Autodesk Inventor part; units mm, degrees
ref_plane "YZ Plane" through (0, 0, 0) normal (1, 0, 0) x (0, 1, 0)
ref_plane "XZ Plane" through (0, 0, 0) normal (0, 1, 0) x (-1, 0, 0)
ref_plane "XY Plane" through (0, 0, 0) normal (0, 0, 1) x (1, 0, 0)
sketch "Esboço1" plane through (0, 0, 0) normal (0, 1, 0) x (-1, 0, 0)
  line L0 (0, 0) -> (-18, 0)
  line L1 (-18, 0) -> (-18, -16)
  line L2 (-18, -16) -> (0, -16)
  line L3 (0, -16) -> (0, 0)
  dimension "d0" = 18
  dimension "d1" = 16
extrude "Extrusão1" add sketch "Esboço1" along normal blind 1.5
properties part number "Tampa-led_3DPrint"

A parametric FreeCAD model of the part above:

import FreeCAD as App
import Part
import Sketcher
from FreeCAD import Vector
Q = App.Units.Quantity


def add_polygon(sketch, points):
    """Adds a closed chain of lines whose ends are joined by coincident constraints."""
    first, n = sketch.GeometryCount, len(points)
    for a, b in zip(points, points[1:] + points[:1]):
        sketch.addGeometry(Part.LineSegment(App.Vector(*a, 0), App.Vector(*b, 0)), False)
    for i in range(n):
        sketch.addConstraint(Sketcher.Constraint("Coincident", first + i, 2, first + (i + 1) % n, 1))

doc = App.newDocument("Part")
body = doc.addObject("PartDesign::Body", "Body")

# Sketch on XZ plane
sketch1 = doc.addObject("Sketcher::SketchObject", "Sketch")
body.addObject(sketch1)
sketch1.AttachmentSupport = (doc.XZ_Plane, [""])
sketch1.MapMode = "FlatFace"
add_polygon(sketch1, [(0, -16), (0, 0), (18, 0), (18, -16)])  # lines 0-3
sketch1.addConstraint(Sketcher.Constraint("Vertical", 0))
sketch1.addConstraint(Sketcher.Constraint("Horizontal", 1))
sketch1.addConstraint(Sketcher.Constraint("Vertical", 2))
sketch1.addConstraint(Sketcher.Constraint("Horizontal", 3))
sketch1.addConstraint(Sketcher.Constraint("Coincident", 0, 2, -1, 1))
sketch1.addConstraint(Sketcher.Constraint("DistanceX", 1, 1, 1, 2, Q("18 mm")))
sketch1.addConstraint(Sketcher.Constraint("DistanceY", 0, 1, 0, 2, Q("16 mm")))
pad1 = doc.addObject("PartDesign::Pad", "Pad")
body.addObject(pad1)
pad1.Profile = sketch1
pad1.Length = 1.5
pad1.Reversed = True

doc.recompute()
